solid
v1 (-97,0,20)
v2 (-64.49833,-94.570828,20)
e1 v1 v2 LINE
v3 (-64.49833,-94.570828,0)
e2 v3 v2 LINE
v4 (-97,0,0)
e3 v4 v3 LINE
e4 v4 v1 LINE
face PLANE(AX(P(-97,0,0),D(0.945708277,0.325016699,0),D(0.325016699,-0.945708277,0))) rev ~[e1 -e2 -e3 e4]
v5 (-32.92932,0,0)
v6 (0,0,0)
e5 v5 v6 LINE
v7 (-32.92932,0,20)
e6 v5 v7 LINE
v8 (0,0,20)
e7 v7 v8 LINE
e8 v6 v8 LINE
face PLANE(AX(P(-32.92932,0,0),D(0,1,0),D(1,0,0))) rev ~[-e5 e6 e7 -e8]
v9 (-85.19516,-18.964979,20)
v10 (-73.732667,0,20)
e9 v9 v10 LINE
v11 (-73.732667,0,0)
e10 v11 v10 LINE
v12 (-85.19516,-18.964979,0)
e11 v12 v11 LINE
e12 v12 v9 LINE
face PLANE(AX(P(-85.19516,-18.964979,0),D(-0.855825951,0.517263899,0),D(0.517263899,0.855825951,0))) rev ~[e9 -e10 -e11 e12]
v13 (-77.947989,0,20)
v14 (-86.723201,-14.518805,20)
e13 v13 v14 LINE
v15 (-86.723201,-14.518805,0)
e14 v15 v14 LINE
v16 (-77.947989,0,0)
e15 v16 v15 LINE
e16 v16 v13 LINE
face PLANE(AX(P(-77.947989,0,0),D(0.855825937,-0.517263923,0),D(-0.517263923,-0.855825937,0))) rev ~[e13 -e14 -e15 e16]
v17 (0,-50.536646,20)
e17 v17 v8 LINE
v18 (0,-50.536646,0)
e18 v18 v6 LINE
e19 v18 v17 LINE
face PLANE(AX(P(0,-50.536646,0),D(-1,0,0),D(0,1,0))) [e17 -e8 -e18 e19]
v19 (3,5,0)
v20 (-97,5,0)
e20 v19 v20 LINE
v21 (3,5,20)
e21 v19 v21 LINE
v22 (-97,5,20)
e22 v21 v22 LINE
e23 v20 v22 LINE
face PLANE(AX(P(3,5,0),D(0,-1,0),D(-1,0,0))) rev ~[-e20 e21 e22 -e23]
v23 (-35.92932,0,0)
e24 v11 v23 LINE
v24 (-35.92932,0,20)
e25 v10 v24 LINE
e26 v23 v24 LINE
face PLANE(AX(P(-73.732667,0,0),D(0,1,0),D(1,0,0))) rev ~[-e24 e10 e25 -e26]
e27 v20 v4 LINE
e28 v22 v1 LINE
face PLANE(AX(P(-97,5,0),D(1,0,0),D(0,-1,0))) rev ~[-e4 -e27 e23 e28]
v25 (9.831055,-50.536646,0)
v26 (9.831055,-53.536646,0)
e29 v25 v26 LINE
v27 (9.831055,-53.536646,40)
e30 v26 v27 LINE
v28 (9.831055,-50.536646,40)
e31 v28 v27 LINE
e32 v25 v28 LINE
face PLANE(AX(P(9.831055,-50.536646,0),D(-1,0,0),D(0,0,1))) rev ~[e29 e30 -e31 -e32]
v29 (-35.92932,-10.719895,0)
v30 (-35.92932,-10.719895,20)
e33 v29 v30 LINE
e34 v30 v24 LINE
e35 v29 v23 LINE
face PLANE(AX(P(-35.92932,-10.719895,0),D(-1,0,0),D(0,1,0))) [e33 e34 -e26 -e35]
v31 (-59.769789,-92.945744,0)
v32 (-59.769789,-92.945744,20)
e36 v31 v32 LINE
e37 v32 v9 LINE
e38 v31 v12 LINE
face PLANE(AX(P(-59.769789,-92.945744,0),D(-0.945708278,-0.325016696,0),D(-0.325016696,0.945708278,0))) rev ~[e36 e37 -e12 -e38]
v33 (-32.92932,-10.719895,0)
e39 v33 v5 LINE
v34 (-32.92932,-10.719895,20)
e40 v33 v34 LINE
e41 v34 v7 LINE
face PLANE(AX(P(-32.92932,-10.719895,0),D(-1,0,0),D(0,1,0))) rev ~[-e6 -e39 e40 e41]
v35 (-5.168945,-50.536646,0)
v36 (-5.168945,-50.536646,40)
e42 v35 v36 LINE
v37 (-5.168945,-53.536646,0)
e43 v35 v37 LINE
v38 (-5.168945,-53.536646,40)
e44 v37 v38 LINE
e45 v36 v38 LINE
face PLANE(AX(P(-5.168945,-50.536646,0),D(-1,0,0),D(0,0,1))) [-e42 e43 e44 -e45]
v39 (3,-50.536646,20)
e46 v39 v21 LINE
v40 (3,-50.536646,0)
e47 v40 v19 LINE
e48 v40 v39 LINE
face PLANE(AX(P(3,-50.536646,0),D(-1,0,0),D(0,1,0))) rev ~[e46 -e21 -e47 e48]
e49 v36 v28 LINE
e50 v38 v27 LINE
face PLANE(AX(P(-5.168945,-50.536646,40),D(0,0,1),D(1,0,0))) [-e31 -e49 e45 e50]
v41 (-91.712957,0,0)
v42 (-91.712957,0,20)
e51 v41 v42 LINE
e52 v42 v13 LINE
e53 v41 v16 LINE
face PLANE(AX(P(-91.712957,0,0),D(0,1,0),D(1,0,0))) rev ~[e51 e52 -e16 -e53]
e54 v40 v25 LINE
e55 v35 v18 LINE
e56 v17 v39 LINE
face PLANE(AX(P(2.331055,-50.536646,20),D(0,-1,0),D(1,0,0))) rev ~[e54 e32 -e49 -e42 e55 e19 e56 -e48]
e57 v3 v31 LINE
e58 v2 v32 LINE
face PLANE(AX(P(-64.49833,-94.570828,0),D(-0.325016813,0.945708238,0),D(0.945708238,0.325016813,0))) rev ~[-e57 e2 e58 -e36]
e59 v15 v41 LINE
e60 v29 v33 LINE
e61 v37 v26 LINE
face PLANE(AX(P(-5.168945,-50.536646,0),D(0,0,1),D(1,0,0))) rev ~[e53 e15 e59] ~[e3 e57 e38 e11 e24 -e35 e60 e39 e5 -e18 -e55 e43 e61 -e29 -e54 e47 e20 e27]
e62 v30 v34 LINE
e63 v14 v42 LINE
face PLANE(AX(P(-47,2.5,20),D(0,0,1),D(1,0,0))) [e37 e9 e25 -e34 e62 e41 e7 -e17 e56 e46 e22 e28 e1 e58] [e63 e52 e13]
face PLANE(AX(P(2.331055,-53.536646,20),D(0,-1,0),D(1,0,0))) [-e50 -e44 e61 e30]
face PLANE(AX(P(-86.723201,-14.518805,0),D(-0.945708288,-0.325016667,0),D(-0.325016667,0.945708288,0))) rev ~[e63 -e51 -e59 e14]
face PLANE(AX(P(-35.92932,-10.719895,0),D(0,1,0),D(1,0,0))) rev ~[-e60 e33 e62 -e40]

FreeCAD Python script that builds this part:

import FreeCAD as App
import Part
import Sketcher
Q = App.Units.Quantity

doc = App.newDocument("Part")
body = doc.addObject("PartDesign::Body", "Body")

# Sketch on XY plane
sketch1 = body.newObject("Sketcher::SketchObject", "Sketch")
sketch1.AttachmentSupport = (doc.getObject("XY_Plane"), [""])
sketch1.MapMode = "FlatFace"
sketch1.addGeometry([
    Part.LineSegment(App.Vector(3, -50.5, 0), App.Vector(3, 5, 0)),  # 0
    Part.LineSegment(App.Vector(3, 5, 0), App.Vector(-97, 5, 0)),  # 1
    Part.LineSegment(App.Vector(-97, 5, 0), App.Vector(-97, 0, 0)),  # 2
    Part.LineSegment(App.Vector(-97, 0, 0), App.Vector(-64.5, -94.6, 0)),  # 3
    Part.LineSegment(App.Vector(-64.5, -94.6, 0), App.Vector(-59.8, -92.9, 0)),  # 4
    Part.LineSegment(App.Vector(-59.8, -92.9, 0), App.Vector(-85.2, -19, 0)),  # 5
    Part.LineSegment(App.Vector(-85.2, -19, 0), App.Vector(-73.7, 0, 0)),  # 6
    Part.LineSegment(App.Vector(-73.7, 0, 0), App.Vector(-35.9, 0, 0)),  # 7
    Part.LineSegment(App.Vector(-35.9, 0, 0), App.Vector(-35.9, -10.7, 0)),  # 8
    Part.LineSegment(App.Vector(-35.9, -10.7, 0), App.Vector(-32.9, -10.7, 0)),  # 9
    Part.LineSegment(App.Vector(-32.9, -10.7, 0), App.Vector(-32.9, 0, 0)),  # 10
    Part.LineSegment(App.Vector(-32.9, 0, 0), App.Vector(0, 0, 0)),  # 11
    Part.LineSegment(App.Vector(0, 0, 0), App.Vector(0, -50.5, 0)),  # 12
    Part.LineSegment(App.Vector(0, -50.5, 0), App.Vector(3, -50.5, 0)),  # 13
    Part.LineSegment(App.Vector(-91.7, 0, 0), App.Vector(-77.9, 0, 0)),  # 14
    Part.LineSegment(App.Vector(-77.9, 0, 0), App.Vector(-86.7, -14.5, 0)),  # 15
    Part.LineSegment(App.Vector(-86.7, -14.5, 0), App.Vector(-91.7, 0, 0)),  # 16
], False)
sketch1.addConstraint([
    Sketcher.Constraint("Coincident", 0, 2, 1, 1),
    Sketcher.Constraint("Coincident", 1, 2, 2, 1),
    Sketcher.Constraint("Coincident", 2, 2, 3, 1),
    Sketcher.Constraint("Coincident", 3, 2, 4, 1),
    Sketcher.Constraint("Coincident", 4, 2, 5, 1),
    Sketcher.Constraint("Coincident", 5, 2, 6, 1),
    Sketcher.Constraint("Coincident", 6, 2, 7, 1),
    Sketcher.Constraint("Coincident", 7, 2, 8, 1),
    Sketcher.Constraint("Coincident", 8, 2, 9, 1),
    Sketcher.Constraint("Coincident", 9, 2, 10, 1),
    Sketcher.Constraint("Coincident", 10, 2, 11, 1),
    Sketcher.Constraint("Coincident", 11, 2, 12, 1),
    Sketcher.Constraint("Coincident", 12, 2, 13, 1),
    Sketcher.Constraint("Coincident", 13, 2, 0, 1),
    Sketcher.Constraint("Coincident", 14, 2, 15, 1),
    Sketcher.Constraint("Coincident", 15, 2, 16, 1),
    Sketcher.Constraint("Coincident", 16, 2, 14, 1),
    Sketcher.Constraint("Vertical", 0),
    Sketcher.Constraint("Horizontal", 1),
    Sketcher.Constraint("Vertical", 2),
    Sketcher.Constraint("Horizontal", 7),
    Sketcher.Constraint("Vertical", 8),
    Sketcher.Constraint("Horizontal", 9),
    Sketcher.Constraint("Vertical", 10),
    Sketcher.Constraint("Horizontal", 11),
    Sketcher.Constraint("Vertical", 12),
    Sketcher.Constraint("Horizontal", 13),
    Sketcher.Constraint("Horizontal", 14),
    Sketcher.Constraint("Coincident", 11, 2, -1, 1),
    Sketcher.Constraint("PointOnObject", 2, 2, -1),
    Sketcher.Constraint("PointOnObject", 6, 2, -1),
    Sketcher.Constraint("PointOnObject", 14, 2, -1),
    Sketcher.Constraint("Perpendicular", 3, 4),
    Sketcher.Constraint("Perpendicular", 4, 5),
    Sketcher.Constraint("Parallel", 6, 15),
    Sketcher.Constraint("Parallel", 5, 16),
    Sketcher.Constraint("Equal", 9, 13),
    Sketcher.Constraint("DistanceX", 1, 2, 1, 1, Q("100 mm")),
    Sketcher.Constraint("DistanceX", 9, 1, 9, 2, Q("3 mm")),
    Sketcher.Constraint("DistanceY", 2, 2, 2, 1, Q("5 mm")),
    Sketcher.Constraint("Distance", 3, Q("100 mm")),
    Sketcher.Constraint("Distance", 4, Q("5 mm")),
    Sketcher.Constraint("DistanceX", 11, 1, 11, 2, Q("32.92932 mm")),
    Sketcher.Constraint("DistanceX", 15, 2, -1, 1, Q("86.723201 mm")),
    Sketcher.Constraint("Distance", 5, Q("78.227892 mm")),
    Sketcher.Constraint("Distance", 15, Q("16.96467 mm")),
    Sketcher.Constraint("Distance", 16, Q("15.352308 mm")),
    Sketcher.Constraint("DistanceX", 7, 1, 7, 2, Q("37.803347 mm")),
    Sketcher.Constraint("DistanceY", 0, 1, 0, 2, Q("55.536646 mm")),
    Sketcher.Constraint("DistanceY", 8, 2, 8, 1, Q("10.719895 mm")),
])
pad1 = body.newObject("PartDesign::Pad", "Pad")
pad1.Profile = sketch1
pad1.Length = 20

# Sketch on XZ plane
sketch2 = body.newObject("Sketcher::SketchObject", "Sketch001")
sketch2.AttachmentSupport = (doc.getObject("XZ_Plane"), [""])
sketch2.MapMode = "FlatFace"
sketch2.AttachmentOffset = App.Placement(App.Vector(0, 0, 50.536646), App.Rotation())
sketch2.addGeometry([
    Part.LineSegment(App.Vector(-5, 40, 0), App.Vector(-5, 0, 0)),
    Part.LineSegment(App.Vector(-5, 0, 0), App.Vector(10, 0, 0)),
    Part.LineSegment(App.Vector(10, 0, 0), App.Vector(10, 40, 0)),
    Part.LineSegment(App.Vector(10, 40, 0), App.Vector(-5, 40, 0)),
], False)
sketch2.addConstraint([
    Sketcher.Constraint("Coincident", 0, 2, 1, 1),
    Sketcher.Constraint("Coincident", 1, 2, 2, 1),
    Sketcher.Constraint("Coincident", 2, 2, 3, 1),
    Sketcher.Constraint("Coincident", 3, 2, 0, 1),
    Sketcher.Constraint("Vertical", 0),
    Sketcher.Constraint("Horizontal", 1),
    Sketcher.Constraint("Vertical", 2),
    Sketcher.Constraint("Horizontal", 3),
    Sketcher.Constraint("PointOnObject", 0, 2, -1),
    Sketcher.Constraint("DistanceX", 1, 1, 1, 2, Q("15 mm")),
    Sketcher.Constraint("DistanceY", 0, 2, 0, 1, Q("40 mm")),
    Sketcher.Constraint("DistanceX", 0, 2, -1, 1, Q("5.168945 mm")),
])
pad2 = body.newObject("PartDesign::Pad", "Pad001")
pad2.Profile = sketch2
pad2.Length = 3

doc.recompute()
